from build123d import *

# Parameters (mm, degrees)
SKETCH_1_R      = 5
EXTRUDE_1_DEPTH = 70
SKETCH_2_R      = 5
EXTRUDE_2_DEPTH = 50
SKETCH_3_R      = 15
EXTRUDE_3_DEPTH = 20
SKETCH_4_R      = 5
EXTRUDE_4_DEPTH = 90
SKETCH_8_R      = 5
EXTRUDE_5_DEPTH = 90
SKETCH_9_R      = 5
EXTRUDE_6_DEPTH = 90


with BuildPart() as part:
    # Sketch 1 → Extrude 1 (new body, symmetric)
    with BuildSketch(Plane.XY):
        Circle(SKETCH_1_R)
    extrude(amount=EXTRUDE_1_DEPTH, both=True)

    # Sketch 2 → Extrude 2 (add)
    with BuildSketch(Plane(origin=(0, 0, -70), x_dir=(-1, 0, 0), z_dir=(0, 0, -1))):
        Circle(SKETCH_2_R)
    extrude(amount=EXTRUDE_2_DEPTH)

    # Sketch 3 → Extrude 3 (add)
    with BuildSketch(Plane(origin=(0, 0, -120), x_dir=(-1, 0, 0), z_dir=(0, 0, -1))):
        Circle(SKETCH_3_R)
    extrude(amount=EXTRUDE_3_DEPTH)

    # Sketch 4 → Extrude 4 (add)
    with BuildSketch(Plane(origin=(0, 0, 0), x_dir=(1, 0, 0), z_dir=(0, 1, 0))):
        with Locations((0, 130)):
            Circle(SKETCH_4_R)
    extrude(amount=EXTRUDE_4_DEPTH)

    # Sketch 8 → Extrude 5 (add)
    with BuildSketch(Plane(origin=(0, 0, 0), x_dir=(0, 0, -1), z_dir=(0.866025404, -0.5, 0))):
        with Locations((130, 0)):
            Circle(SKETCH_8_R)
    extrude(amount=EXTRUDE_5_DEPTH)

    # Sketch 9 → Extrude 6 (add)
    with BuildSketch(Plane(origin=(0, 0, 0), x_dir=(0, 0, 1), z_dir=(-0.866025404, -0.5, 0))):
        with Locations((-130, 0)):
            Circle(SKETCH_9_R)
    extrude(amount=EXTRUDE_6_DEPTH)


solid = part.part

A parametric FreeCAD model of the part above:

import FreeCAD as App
import Part
import Sketcher

V = App.Vector
Q = App.Units.Quantity

doc = App.newDocument("Part")
body = doc.addObject("PartDesign::Body", "Body")

# Sketch on XY plane
sketch1 = body.newObject("Sketcher::SketchObject", "Sketch")
sketch1.AttachmentSupport = (doc.getObject("XY_Plane"), [""])
sketch1.MapMode = "FlatFace"
sketch1.addGeometry(Part.Circle(V(0, 0, 0), V(0, 0, 1), 5), False)
sketch1.addConstraint([
    Sketcher.Constraint("Coincident", 0, 3, -1, 1),
    Sketcher.Constraint("Diameter", 0, Q("10 mm")),
])
pad1 = body.newObject("PartDesign::Pad", "Pad")
pad1.Profile = sketch1
pad1.Length = 140
pad1.Midplane = True

# Sketch on XY plane
sketch2 = body.newObject("Sketcher::SketchObject", "Sketch001")
sketch2.AttachmentSupport = (doc.getObject("XY_Plane"), [""])
sketch2.MapMode = "FlatFace"
sketch2.AttachmentOffset = App.Placement(V(0, 0, -70), App.Rotation())
sketch2.addGeometry(Part.Circle(V(0, 0, 0), V(0, 0, 1), 5), False)
sketch2.addConstraint([
    Sketcher.Constraint("Coincident", 0, 3, -1, 1),
    Sketcher.Constraint("Diameter", 0, Q("10 mm")),
])
pad2 = body.newObject("PartDesign::Pad", "Pad001")
pad2.Profile = sketch2
pad2.Length = 50
pad2.Reversed = True

# Sketch on XY plane
sketch3 = body.newObject("Sketcher::SketchObject", "Sketch002")
sketch3.AttachmentSupport = (doc.getObject("XY_Plane"), [""])
sketch3.MapMode = "FlatFace"
sketch3.AttachmentOffset = App.Placement(V(0, 0, -120), App.Rotation())
sketch3.addGeometry(Part.Circle(V(0, 0, 0), V(0, 0, 1), 15), False)
sketch3.addConstraint([
    Sketcher.Constraint("Coincident", 0, 3, -1, 1),
    Sketcher.Constraint("Diameter", 0, Q("30 mm")),
])
pad3 = body.newObject("PartDesign::Pad", "Pad002")
pad3.Profile = sketch3
pad3.Length = 20
pad3.Reversed = True

# Sketch on XZ plane
sketch4 = body.newObject("Sketcher::SketchObject", "Sketch003")
sketch4.AttachmentSupport = (doc.getObject("XZ_Plane"), [""])
sketch4.MapMode = "FlatFace"
sketch4.addGeometry(Part.Circle(V(0, -130, 0), V(0, 0, 1), 5), False)
sketch4.addConstraint([
    Sketcher.Constraint("PointOnObject", 0, 3, -2),
    Sketcher.Constraint("Diameter", 0, Q("10 mm")),
    Sketcher.Constraint("DistanceY", 0, 3, -1, 1, Q("130 mm")),
])
pad4 = body.newObject("PartDesign::Pad", "Pad003")
pad4.Profile = sketch4
pad4.Length = 90
pad4.Reversed = True

# Sketch on an angled plane
sketch5 = body.newObject("Sketcher::SketchObject", "Sketch004")
sketch5.Placement = App.Placement(V(0, 0, 0), App.Rotation(V(0, 0, -1), V(0.5, 0.866025404, 0), V(0.866025404, -0.5, 0), "ZXY"))
sketch5.addGeometry(Part.Circle(V(130, 0, 0), V(0, 0, 1), 5), False)
sketch5.addConstraint([
    Sketcher.Constraint("PointOnObject", 0, 3, -1),
    Sketcher.Constraint("Diameter", 0, Q("10 mm")),
    Sketcher.Constraint("DistanceX", -1, 1, 0, 3, Q("130 mm")),
])
pad5 = body.newObject("PartDesign::Pad", "Pad004")
pad5.Profile = sketch5
pad5.Length = 90

# Sketch on an angled plane
sketch6 = body.newObject("Sketcher::SketchObject", "Sketch005")
sketch6.Placement = App.Placement(V(0, 0, 0), App.Rotation(V(0, 0, 1), V(-0.5, 0.866025404, 0), V(-0.866025404, -0.5, 0), "ZXY"))
sketch6.addGeometry(Part.Circle(V(-130, 0, 0), V(0, 0, 1), 5), False)
sketch6.addConstraint([
    Sketcher.Constraint("PointOnObject", 0, 3, -1),
    Sketcher.Constraint("Diameter", 0, Q("10 mm")),
    Sketcher.Constraint("DistanceX", 0, 3, -1, 1, Q("130 mm")),
])
pad6 = body.newObject("PartDesign::Pad", "Pad005")
pad6.Profile = sketch6
pad6.Length = 90

doc.recompute()
